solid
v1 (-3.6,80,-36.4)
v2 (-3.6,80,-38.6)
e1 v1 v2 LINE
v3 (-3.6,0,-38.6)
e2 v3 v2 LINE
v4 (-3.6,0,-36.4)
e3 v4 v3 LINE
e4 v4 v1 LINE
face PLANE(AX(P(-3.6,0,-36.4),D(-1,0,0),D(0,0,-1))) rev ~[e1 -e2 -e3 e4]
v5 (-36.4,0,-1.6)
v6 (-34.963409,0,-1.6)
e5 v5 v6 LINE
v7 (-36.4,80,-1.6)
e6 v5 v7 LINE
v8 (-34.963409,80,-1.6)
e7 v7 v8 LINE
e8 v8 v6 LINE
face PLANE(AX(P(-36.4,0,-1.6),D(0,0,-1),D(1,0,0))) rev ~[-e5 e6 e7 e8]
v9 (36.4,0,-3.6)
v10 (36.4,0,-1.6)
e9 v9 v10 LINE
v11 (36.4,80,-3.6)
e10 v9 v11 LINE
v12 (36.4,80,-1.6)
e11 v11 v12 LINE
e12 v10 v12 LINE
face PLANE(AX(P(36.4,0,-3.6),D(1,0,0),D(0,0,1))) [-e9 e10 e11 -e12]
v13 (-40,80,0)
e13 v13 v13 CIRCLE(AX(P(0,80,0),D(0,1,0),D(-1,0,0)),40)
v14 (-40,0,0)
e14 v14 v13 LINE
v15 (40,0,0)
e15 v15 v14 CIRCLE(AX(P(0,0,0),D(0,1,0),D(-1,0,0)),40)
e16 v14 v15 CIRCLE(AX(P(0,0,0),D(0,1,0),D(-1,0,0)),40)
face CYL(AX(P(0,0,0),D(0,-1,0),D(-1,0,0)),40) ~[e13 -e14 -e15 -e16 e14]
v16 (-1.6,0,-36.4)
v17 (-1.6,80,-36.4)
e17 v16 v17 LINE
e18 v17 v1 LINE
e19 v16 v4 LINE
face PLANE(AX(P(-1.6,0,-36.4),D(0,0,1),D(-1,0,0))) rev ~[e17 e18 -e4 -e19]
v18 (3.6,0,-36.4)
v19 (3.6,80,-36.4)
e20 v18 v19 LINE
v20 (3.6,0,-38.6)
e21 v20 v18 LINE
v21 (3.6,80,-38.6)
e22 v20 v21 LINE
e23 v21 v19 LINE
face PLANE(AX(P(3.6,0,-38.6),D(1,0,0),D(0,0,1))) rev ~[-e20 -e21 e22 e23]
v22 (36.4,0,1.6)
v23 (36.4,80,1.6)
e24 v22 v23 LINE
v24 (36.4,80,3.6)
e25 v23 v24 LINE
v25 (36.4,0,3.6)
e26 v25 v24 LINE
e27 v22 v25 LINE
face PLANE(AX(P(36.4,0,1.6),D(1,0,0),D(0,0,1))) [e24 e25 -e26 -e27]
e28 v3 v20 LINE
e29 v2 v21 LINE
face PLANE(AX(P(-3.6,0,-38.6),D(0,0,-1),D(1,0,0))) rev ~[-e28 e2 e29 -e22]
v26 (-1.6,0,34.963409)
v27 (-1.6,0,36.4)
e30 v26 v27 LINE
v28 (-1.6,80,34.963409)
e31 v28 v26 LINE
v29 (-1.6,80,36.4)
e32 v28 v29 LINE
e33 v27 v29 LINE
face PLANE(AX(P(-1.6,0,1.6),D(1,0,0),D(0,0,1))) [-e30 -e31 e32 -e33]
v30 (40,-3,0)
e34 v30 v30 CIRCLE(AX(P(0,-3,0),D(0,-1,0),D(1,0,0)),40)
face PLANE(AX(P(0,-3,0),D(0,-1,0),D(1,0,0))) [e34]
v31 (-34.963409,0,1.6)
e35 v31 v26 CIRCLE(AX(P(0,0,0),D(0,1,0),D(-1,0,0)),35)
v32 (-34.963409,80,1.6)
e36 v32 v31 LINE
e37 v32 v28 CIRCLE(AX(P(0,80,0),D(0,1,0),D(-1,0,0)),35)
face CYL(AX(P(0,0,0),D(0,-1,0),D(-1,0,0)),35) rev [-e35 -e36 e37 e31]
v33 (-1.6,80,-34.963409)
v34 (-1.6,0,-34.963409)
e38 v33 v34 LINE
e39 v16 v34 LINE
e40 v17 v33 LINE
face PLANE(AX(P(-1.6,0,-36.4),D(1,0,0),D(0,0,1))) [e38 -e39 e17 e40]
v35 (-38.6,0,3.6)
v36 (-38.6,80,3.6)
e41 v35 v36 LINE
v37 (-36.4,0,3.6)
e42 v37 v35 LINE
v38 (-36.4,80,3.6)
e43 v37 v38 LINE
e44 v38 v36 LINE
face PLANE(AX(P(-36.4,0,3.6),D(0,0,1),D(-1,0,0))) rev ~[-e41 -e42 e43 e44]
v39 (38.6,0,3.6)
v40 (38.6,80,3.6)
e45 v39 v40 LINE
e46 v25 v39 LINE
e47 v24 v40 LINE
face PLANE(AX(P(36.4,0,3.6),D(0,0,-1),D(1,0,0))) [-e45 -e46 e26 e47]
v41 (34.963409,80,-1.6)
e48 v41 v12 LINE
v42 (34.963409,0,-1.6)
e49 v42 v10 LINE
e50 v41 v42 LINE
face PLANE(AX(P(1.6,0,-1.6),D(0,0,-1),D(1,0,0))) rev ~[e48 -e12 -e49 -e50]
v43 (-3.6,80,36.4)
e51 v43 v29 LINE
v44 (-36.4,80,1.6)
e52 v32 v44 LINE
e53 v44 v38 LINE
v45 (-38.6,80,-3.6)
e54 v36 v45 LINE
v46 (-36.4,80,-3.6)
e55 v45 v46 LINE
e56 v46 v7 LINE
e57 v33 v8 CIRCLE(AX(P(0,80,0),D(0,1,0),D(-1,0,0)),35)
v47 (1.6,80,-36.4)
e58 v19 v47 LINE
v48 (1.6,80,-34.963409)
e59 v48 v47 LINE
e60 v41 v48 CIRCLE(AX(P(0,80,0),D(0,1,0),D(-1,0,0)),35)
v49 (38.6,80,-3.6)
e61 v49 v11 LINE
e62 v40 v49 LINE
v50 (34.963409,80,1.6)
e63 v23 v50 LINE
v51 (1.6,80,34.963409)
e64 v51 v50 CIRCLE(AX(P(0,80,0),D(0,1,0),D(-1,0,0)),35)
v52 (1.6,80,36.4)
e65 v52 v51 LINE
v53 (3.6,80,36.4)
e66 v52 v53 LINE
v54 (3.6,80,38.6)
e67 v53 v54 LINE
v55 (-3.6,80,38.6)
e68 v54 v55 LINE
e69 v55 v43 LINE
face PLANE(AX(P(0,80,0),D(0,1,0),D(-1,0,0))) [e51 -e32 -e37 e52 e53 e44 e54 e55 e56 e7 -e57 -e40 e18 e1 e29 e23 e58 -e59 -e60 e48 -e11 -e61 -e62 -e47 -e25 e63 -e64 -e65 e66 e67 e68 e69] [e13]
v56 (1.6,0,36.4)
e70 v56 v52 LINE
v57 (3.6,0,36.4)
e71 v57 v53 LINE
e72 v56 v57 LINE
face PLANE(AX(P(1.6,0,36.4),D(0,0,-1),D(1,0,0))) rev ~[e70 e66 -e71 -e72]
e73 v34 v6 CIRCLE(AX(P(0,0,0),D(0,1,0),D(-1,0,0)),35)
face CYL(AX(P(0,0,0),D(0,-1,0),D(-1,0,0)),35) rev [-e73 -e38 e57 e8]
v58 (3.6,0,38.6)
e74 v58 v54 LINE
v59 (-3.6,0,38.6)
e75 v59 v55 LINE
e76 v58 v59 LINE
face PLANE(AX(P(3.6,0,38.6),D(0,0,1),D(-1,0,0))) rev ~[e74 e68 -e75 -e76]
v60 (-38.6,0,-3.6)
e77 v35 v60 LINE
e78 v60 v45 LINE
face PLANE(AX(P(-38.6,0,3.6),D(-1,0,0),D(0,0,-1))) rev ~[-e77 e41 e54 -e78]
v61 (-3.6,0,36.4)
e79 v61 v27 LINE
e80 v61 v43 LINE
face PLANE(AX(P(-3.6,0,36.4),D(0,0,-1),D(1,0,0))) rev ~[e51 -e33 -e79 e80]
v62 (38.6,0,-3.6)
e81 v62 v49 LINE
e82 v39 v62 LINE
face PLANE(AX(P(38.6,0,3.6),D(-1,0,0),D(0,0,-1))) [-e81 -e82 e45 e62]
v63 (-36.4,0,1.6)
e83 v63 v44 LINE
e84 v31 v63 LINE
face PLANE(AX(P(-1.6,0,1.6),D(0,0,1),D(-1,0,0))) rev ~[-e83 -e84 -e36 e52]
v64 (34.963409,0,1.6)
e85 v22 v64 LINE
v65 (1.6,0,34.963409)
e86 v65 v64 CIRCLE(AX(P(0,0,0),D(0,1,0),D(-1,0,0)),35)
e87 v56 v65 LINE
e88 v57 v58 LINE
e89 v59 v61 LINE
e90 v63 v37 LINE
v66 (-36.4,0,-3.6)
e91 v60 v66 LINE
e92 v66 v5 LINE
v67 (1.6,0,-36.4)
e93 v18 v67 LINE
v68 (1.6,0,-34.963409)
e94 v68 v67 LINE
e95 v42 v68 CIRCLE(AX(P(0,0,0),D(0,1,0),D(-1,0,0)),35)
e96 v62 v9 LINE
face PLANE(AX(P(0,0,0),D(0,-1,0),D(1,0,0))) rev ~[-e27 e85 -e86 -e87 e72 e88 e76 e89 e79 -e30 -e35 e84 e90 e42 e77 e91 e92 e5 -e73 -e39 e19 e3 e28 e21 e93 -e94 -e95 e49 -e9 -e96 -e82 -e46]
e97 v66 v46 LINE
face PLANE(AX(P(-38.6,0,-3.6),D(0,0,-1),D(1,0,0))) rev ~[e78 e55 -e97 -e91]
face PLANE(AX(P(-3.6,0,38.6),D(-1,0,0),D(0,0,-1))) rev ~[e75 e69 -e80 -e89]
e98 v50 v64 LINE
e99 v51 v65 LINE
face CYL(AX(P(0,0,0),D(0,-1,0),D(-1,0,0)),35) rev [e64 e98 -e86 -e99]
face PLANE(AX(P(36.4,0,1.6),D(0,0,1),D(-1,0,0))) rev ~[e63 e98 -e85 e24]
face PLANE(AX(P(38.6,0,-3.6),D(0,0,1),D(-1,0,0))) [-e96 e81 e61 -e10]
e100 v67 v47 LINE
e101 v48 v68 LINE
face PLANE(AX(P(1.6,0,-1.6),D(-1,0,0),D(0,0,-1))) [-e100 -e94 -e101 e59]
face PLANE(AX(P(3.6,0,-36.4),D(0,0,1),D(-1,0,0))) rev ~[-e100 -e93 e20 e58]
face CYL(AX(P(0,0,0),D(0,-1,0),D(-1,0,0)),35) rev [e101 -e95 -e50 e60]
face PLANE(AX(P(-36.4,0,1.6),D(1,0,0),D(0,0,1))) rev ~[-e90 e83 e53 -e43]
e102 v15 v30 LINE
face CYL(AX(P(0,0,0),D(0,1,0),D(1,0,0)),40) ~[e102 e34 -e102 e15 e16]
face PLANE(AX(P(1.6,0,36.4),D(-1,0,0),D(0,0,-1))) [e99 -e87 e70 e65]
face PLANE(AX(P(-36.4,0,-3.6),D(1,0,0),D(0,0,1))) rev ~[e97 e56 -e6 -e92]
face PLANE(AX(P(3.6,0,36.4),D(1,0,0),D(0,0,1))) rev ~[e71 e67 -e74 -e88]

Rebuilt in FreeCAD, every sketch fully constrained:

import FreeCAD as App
import Part
import Sketcher

V = App.Vector

doc = App.newDocument("Part")
body = doc.addObject("PartDesign::Body", "Body")

# Sketch on XZ plane
sketch1 = body.newObject("Sketcher::SketchObject", "Sketch")
sketch1.AttachmentSupport = (doc.getObject("XZ_Plane"), [""])
sketch1.MapMode = "FlatFace"
sketch1.addGeometry([
    Part.Circle(V(0, 0, 0), V(0, 0, 1), 40),
    Part.Circle(V(0, 0, 0), V(0, 0, 1), 35),
], False)
sketch1.addConstraint([
    Sketcher.Constraint("Coincident", 0, 3, -1, 1),
    Sketcher.Constraint("Coincident", 1, 3, -1, 1),
    Sketcher.Constraint("Diameter", 0, 80.0),
    Sketcher.Constraint("Diameter", 1, 70.0),
])
pad1 = body.newObject("PartDesign::Pad", "Pad")
pad1.Profile = sketch1
pad1.Length = 80
pad1.Reversed = True

# Sketch on XZ plane
sketch2 = body.newObject("Sketcher::SketchObject", "Sketch001")
sketch2.AttachmentSupport = (doc.getObject("XZ_Plane"), [""])
sketch2.MapMode = "FlatFace"
sketch2.addGeometry([
    Part.LineSegment(V(36.4, -1.6, 0), V(36.4, -3.6, 0)),  # 0
    Part.LineSegment(V(36.4, -3.6, 0), V(38.6, -3.6, 0)),  # 1
    Part.LineSegment(V(38.6, -3.6, 0), V(38.6, 3.6, 0)),  # 2
    Part.LineSegment(V(38.6, 3.6, 0), V(36.4, 3.6, 0)),  # 3
    Part.LineSegment(V(36.4, 3.6, 0), V(36.4, 1.6, 0)),  # 4
    Part.LineSegment(V(36.4, 1.6, 0), V(1.6, 1.6, 0)),  # 5
    Part.LineSegment(V(1.6, 1.6, 0), V(1.6, 36.4, 0)),  # 6
    Part.LineSegment(V(1.6, 36.4, 0), V(3.6, 36.4, 0)),  # 7
    Part.LineSegment(V(3.6, 36.4, 0), V(3.6, 38.6, 0)),  # 8
    Part.LineSegment(V(3.6, 38.6, 0), V(-3.6, 38.6, 0)),  # 9
    Part.LineSegment(V(-3.6, 38.6, 0), V(-3.6, 36.4, 0)),  # 10
    Part.LineSegment(V(-3.6, 36.4, 0), V(-1.6, 36.4, 0)),  # 11
    Part.LineSegment(V(-1.6, 36.4, 0), V(-1.6, 1.6, 0)),  # 12
    Part.LineSegment(V(-1.6, 1.6, 0), V(-36.4, 1.6, 0)),  # 13
    Part.LineSegment(V(-36.4, 1.6, 0), V(-36.4, 3.6, 0)),  # 14
    Part.LineSegment(V(-36.4, 3.6, 0), V(-38.6, 3.6, 0)),  # 15
    Part.LineSegment(V(-38.6, 3.6, 0), V(-38.6, -3.6, 0)),  # 16
    Part.LineSegment(V(-38.6, -3.6, 0), V(-36.4, -3.6, 0)),  # 17
    Part.LineSegment(V(-36.4, -3.6, 0), V(-36.4, -1.6, 0)),  # 18
    Part.LineSegment(V(-36.4, -1.6, 0), V(-1.6, -1.6, 0)),  # 19
    Part.LineSegment(V(-1.6, -1.6, 0), V(-1.6, -36.4, 0)),  # 20
    Part.LineSegment(V(-1.6, -36.4, 0), V(-3.6, -36.4, 0)),  # 21
    Part.LineSegment(V(-3.6, -36.4, 0), V(-3.6, -38.6, 0)),  # 22
    Part.LineSegment(V(-3.6, -38.6, 0), V(3.6, -38.6, 0)),  # 23
    Part.LineSegment(V(3.6, -38.6, 0), V(3.6, -36.4, 0)),  # 24
    Part.LineSegment(V(3.6, -36.4, 0), V(1.6, -36.4, 0)),  # 25
    Part.LineSegment(V(1.6, -36.4, 0), V(1.6, -1.6, 0)),  # 26
    Part.LineSegment(V(1.6, -1.6, 0), V(36.4, -1.6, 0)),  # 27
], False)
sketch2.addConstraint([
    Sketcher.Constraint("Coincident", 0, 2, 1, 1),
    Sketcher.Constraint("Coincident", 1, 2, 2, 1),
    Sketcher.Constraint("Coincident", 2, 2, 3, 1),
    Sketcher.Constraint("Coincident", 3, 2, 4, 1),
    Sketcher.Constraint("Coincident", 4, 2, 5, 1),
    Sketcher.Constraint("Coincident", 5, 2, 6, 1),
    Sketcher.Constraint("Coincident", 6, 2, 7, 1),
    Sketcher.Constraint("Coincident", 7, 2, 8, 1),
    Sketcher.Constraint("Coincident", 8, 2, 9, 1),
    Sketcher.Constraint("Coincident", 9, 2, 10, 1),
    Sketcher.Constraint("Coincident", 10, 2, 11, 1),
    Sketcher.Constraint("Coincident", 11, 2, 12, 1),
    Sketcher.Constraint("Coincident", 12, 2, 13, 1),
    Sketcher.Constraint("Coincident", 13, 2, 14, 1),
    Sketcher.Constraint("Coincident", 14, 2, 15, 1),
    Sketcher.Constraint("Coincident", 15, 2, 16, 1),
    Sketcher.Constraint("Coincident", 16, 2, 17, 1),
    Sketcher.Constraint("Coincident", 17, 2, 18, 1),
    Sketcher.Constraint("Coincident", 18, 2, 19, 1),
    Sketcher.Constraint("Coincident", 19, 2, 20, 1),
    Sketcher.Constraint("Coincident", 20, 2, 21, 1),
    Sketcher.Constraint("Coincident", 21, 2, 22, 1),
    Sketcher.Constraint("Coincident", 22, 2, 23, 1),
    Sketcher.Constraint("Coincident", 23, 2, 24, 1),
    Sketcher.Constraint("Coincident", 24, 2, 25, 1),
    Sketcher.Constraint("Coincident", 25, 2, 26, 1),
    Sketcher.Constraint("Coincident", 26, 2, 27, 1),
    Sketcher.Constraint("Coincident", 27, 2, 0, 1),
    Sketcher.Constraint("Vertical", 0),
    Sketcher.Constraint("Horizontal", 1),
    Sketcher.Constraint("Vertical", 2),
    Sketcher.Constraint("Horizontal", 3),
    Sketcher.Constraint("Vertical", 4),
    Sketcher.Constraint("Horizontal", 5),
    Sketcher.Constraint("Vertical", 6),
    Sketcher.Constraint("Horizontal", 7),
    Sketcher.Constraint("Vertical", 8),
    Sketcher.Constraint("Horizontal", 9),
    Sketcher.Constraint("Vertical", 10),
    Sketcher.Constraint("Horizontal", 11),
    Sketcher.Constraint("Vertical", 12),
    Sketcher.Constraint("Horizontal", 13),
    Sketcher.Constraint("Vertical", 14),
    Sketcher.Constraint("Horizontal", 15),
    Sketcher.Constraint("Vertical", 16),
    Sketcher.Constraint("Horizontal", 17),
    Sketcher.Constraint("Vertical", 18),
    Sketcher.Constraint("Horizontal", 19),
    Sketcher.Constraint("Vertical", 20),
    Sketcher.Constraint("Horizontal", 21),
    Sketcher.Constraint("Vertical", 22),
    Sketcher.Constraint("Horizontal", 23),
    Sketcher.Constraint("Vertical", 24),
    Sketcher.Constraint("Horizontal", 25),
    Sketcher.Constraint("Vertical", 26),
    Sketcher.Constraint("Horizontal", 27),
    Sketcher.Constraint("Symmetric", 0, 2, 14, 2, -1, 1),
    Sketcher.Constraint("Symmetric", 2, 2, 16, 2, -1, 1),
    Sketcher.Constraint("Symmetric", 4, 2, 18, 2, -1, 1),
    Sketcher.Constraint("Symmetric", 6, 2, 20, 2, -1, 1),
    Sketcher.Constraint("Symmetric", 8, 2, 22, 2, -1, 1),
    Sketcher.Constraint("Symmetric", 10, 2, 24, 2, -1, 1),
    Sketcher.Constraint("Symmetric", 12, 2, 26, 2, -1, 1),
    Sketcher.Constraint("Symmetric", 7, 2, 10, 2, -2),
    Sketcher.Constraint("Symmetric", 5, 2, 12, 2, -2),
    Sketcher.Constraint("Symmetric", 3, 2, 14, 2, -2),
    Sketcher.Constraint("Equal", 25, 0),
    Sketcher.Constraint("Equal", 23, 2),
    Sketcher.Constraint("Equal", 27, 6),
    Sketcher.Constraint("Equal", 17, 8),
    Sketcher.Constraint("DistanceX", 1, 1, 1, 2, 2.2),
    Sketcher.Constraint("DistanceX", 9, 2, 9, 1, 7.2),
    Sketcher.Constraint("DistanceX", 11, 2, 6, 2, 3.2),
    Sketcher.Constraint("DistanceX", 5, 2, 5, 1, 34.8),
])
pocket1 = body.newObject("PartDesign::Pocket", "Pocket")
pocket1.Profile = sketch2
pocket1.Length = 80

# Sketch on XZ plane
sketch3 = body.newObject("Sketcher::SketchObject", "Sketch002")
sketch3.AttachmentSupport = (doc.getObject("XZ_Plane"), [""])
sketch3.MapMode = "FlatFace"
sketch3.addGeometry(Part.Circle(V(0, 0, 0), V(0, 0, 1), 40), False)
sketch3.addConstraint([
    Sketcher.Constraint("Coincident", 0, 3, -1, 1),
    Sketcher.Constraint("Diameter", 0, 80.0),
])
pad2 = body.newObject("PartDesign::Pad", "Pad001")
pad2.Profile = sketch3
pad2.Length = 3

doc.recompute()
